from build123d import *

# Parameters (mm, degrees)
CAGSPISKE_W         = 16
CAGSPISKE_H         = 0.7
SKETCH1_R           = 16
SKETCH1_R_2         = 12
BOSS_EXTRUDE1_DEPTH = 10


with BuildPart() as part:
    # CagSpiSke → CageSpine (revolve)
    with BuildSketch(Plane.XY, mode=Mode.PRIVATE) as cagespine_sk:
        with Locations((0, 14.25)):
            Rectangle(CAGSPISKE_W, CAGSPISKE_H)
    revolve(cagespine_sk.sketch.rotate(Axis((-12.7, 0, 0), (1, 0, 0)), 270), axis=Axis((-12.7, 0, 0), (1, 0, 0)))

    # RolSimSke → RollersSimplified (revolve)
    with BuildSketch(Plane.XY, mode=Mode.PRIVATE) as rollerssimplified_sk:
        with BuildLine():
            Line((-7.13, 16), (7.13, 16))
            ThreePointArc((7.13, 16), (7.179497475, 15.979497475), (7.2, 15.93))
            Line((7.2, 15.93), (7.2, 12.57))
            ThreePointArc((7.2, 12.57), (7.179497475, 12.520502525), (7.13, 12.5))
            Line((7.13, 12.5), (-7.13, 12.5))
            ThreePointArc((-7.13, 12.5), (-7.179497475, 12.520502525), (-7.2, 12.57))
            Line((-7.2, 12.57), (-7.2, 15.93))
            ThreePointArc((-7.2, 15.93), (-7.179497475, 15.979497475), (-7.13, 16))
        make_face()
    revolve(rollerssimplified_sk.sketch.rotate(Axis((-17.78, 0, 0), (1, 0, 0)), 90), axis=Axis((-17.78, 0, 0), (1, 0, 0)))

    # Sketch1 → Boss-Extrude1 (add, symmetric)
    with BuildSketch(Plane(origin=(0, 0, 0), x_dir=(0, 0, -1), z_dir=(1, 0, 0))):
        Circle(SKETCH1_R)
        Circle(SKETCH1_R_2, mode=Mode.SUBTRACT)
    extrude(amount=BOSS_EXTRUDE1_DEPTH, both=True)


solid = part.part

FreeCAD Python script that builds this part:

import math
import FreeCAD as App
import Part
import Sketcher

V = App.Vector
Q = App.Units.Quantity

doc = App.newDocument("Part")
body = doc.addObject("PartDesign::Body", "Body")

sketch1 = body.newObject("Sketcher::SketchObject", "Sketch")
sketch1.AttachmentSupport = (doc.getObject("XY_Plane"), [""])
sketch1.MapMode = "FlatFace"
sketch1.addGeometry(Part.LineSegment(V(-8, 14.6, 0), V(-8, 13.9, 0)), False)
sketch1.addGeometry(Part.LineSegment(V(-8, 13.9, 0), V(8, 13.9, 0)), False)
sketch1.addGeometry(Part.LineSegment(V(8, 13.9, 0), V(8, 14.6, 0)), False)
sketch1.addGeometry(Part.LineSegment(V(8, 14.6, 0), V(-8, 14.6, 0)), False)
sketch1.addConstraint(Sketcher.Constraint("Coincident", 0, 2, 1, 1))
sketch1.addConstraint(Sketcher.Constraint("Coincident", 1, 2, 2, 1))
sketch1.addConstraint(Sketcher.Constraint("Coincident", 2, 2, 3, 1))
sketch1.addConstraint(Sketcher.Constraint("Coincident", 3, 2, 0, 1))
sketch1.addConstraint(Sketcher.Constraint("Vertical", 0))
sketch1.addConstraint(Sketcher.Constraint("Horizontal", 1))
sketch1.addConstraint(Sketcher.Constraint("Vertical", 2))
sketch1.addConstraint(Sketcher.Constraint("Horizontal", 3))
sketch1.addConstraint(Sketcher.Constraint("DistanceX", 1, 1, 1, 2, Q("16 mm")))
sketch1.addConstraint(Sketcher.Constraint("DistanceY", 0, 2, 0, 1, Q("0.7 mm")))
sketch1.addConstraint(Sketcher.Constraint("DistanceX", 0, 2, -1, 1, Q("8 mm")))
sketch1.addConstraint(Sketcher.Constraint("DistanceY", -1, 1, 0, 2, Q("13.9 mm")))
revolution = body.newObject("PartDesign::Revolution", "Revolution")
revolution.Profile = sketch1
revolution.ReferenceAxis = (sketch1, ["H_Axis"])
revolution.Angle = 360

sketch2 = body.newObject("Sketcher::SketchObject", "Sketch001")
sketch2.AttachmentSupport = (doc.getObject("XY_Plane"), [""])
sketch2.MapMode = "FlatFace"
sketch2.addGeometry(Part.LineSegment(V(7.13, 16, 0), V(-7.13, 16, 0)), False)
sketch2.addGeometry(Part.ArcOfCircle(Part.Circle(V(-7.13, 15.93, 0), V(0, 0, 1), 0.07), math.radians(90), math.radians(180)), False)
sketch2.addGeometry(Part.LineSegment(V(-7.2, 15.93, 0), V(-7.2, 12.57, 0)), False)
sketch2.addGeometry(Part.ArcOfCircle(Part.Circle(V(-7.13, 12.57, 0), V(0, 0, 1), 0.07), math.radians(180), math.radians(270)), False)
sketch2.addGeometry(Part.LineSegment(V(-7.13, 12.5, 0), V(7.13, 12.5, 0)), False)
sketch2.addGeometry(Part.ArcOfCircle(Part.Circle(V(7.13, 12.57, 0), V(0, 0, 1), 0.07), math.radians(-90), math.radians(0)), False)
sketch2.addGeometry(Part.LineSegment(V(7.2, 12.57, 0), V(7.2, 15.93, 0)), False)
sketch2.addGeometry(Part.ArcOfCircle(Part.Circle(V(7.13, 15.93, 0), V(0, 0, 1), 0.07), math.radians(0), math.radians(90)), False)
sketch2.addConstraint(Sketcher.Constraint("Tangent", 0, 2, 1, 1))
sketch2.addConstraint(Sketcher.Constraint("Tangent", 1, 2, 2, 1))
sketch2.addConstraint(Sketcher.Constraint("Tangent", 2, 2, 3, 1))
sketch2.addConstraint(Sketcher.Constraint("Tangent", 3, 2, 4, 1))
sketch2.addConstraint(Sketcher.Constraint("Tangent", 4, 2, 5, 1))
sketch2.addConstraint(Sketcher.Constraint("Tangent", 5, 2, 6, 1))
sketch2.addConstraint(Sketcher.Constraint("Tangent", 6, 2, 7, 1))
sketch2.addConstraint(Sketcher.Constraint("Tangent", 7, 2, 0, 1))
sketch2.addConstraint(Sketcher.Constraint("Horizontal", 0))
sketch2.addConstraint(Sketcher.Constraint("Vertical", 2))
sketch2.addConstraint(Sketcher.Constraint("Horizontal", 4))
sketch2.addConstraint(Sketcher.Constraint("Vertical", 6))
sketch2.addConstraint(Sketcher.Constraint("Equal", 1, 3))
sketch2.addConstraint(Sketcher.Constraint("Equal", 3, 5))
sketch2.addConstraint(Sketcher.Constraint("Equal", 5, 7))
sketch2.addConstraint(Sketcher.Constraint("Radius", 1, Q("0.07 mm")))
sketch2.addConstraint(Sketcher.Constraint("DistanceY", -1, 1, 0, 2, Q("16 mm")))
sketch2.addConstraint(Sketcher.Constraint("DistanceX", 0, 2, 0, 1, Q("14.26 mm")))
sketch2.addConstraint(Sketcher.Constraint("DistanceY", 2, 2, 2, 1, Q("3.36 mm")))
sketch2.addConstraint(Sketcher.Constraint("DistanceX", 1, 2, -1, 1, Q("7.2 mm")))
revolution2 = body.newObject("PartDesign::Revolution", "Revolution001")
revolution2.Profile = sketch2
revolution2.ReferenceAxis = (sketch2, ["H_Axis"])
revolution2.Angle = 360

sketch3 = body.newObject("Sketcher::SketchObject", "Sketch002")
sketch3.AttachmentSupport = (doc.getObject("YZ_Plane"), [""])
sketch3.MapMode = "FlatFace"
sketch3.addGeometry(Part.Circle(V(0, 0, 0), V(0, 0, 1), 16), False)
sketch3.addGeometry(Part.Circle(V(0, 0, 0), V(0, 0, 1), 12), False)
sketch3.addConstraint(Sketcher.Constraint("Coincident", 0, 3, -1, 1))
sketch3.addConstraint(Sketcher.Constraint("Coincident", 1, 3, -1, 1))
sketch3.addConstraint(Sketcher.Constraint("Diameter", 0, Q("32 mm")))
sketch3.addConstraint(Sketcher.Constraint("Diameter", 1, Q("24 mm")))
pad1 = body.newObject("PartDesign::Pad", "Pad")
pad1.Profile = sketch3
pad1.Length = 20
pad1.Midplane = True

doc.recompute()
